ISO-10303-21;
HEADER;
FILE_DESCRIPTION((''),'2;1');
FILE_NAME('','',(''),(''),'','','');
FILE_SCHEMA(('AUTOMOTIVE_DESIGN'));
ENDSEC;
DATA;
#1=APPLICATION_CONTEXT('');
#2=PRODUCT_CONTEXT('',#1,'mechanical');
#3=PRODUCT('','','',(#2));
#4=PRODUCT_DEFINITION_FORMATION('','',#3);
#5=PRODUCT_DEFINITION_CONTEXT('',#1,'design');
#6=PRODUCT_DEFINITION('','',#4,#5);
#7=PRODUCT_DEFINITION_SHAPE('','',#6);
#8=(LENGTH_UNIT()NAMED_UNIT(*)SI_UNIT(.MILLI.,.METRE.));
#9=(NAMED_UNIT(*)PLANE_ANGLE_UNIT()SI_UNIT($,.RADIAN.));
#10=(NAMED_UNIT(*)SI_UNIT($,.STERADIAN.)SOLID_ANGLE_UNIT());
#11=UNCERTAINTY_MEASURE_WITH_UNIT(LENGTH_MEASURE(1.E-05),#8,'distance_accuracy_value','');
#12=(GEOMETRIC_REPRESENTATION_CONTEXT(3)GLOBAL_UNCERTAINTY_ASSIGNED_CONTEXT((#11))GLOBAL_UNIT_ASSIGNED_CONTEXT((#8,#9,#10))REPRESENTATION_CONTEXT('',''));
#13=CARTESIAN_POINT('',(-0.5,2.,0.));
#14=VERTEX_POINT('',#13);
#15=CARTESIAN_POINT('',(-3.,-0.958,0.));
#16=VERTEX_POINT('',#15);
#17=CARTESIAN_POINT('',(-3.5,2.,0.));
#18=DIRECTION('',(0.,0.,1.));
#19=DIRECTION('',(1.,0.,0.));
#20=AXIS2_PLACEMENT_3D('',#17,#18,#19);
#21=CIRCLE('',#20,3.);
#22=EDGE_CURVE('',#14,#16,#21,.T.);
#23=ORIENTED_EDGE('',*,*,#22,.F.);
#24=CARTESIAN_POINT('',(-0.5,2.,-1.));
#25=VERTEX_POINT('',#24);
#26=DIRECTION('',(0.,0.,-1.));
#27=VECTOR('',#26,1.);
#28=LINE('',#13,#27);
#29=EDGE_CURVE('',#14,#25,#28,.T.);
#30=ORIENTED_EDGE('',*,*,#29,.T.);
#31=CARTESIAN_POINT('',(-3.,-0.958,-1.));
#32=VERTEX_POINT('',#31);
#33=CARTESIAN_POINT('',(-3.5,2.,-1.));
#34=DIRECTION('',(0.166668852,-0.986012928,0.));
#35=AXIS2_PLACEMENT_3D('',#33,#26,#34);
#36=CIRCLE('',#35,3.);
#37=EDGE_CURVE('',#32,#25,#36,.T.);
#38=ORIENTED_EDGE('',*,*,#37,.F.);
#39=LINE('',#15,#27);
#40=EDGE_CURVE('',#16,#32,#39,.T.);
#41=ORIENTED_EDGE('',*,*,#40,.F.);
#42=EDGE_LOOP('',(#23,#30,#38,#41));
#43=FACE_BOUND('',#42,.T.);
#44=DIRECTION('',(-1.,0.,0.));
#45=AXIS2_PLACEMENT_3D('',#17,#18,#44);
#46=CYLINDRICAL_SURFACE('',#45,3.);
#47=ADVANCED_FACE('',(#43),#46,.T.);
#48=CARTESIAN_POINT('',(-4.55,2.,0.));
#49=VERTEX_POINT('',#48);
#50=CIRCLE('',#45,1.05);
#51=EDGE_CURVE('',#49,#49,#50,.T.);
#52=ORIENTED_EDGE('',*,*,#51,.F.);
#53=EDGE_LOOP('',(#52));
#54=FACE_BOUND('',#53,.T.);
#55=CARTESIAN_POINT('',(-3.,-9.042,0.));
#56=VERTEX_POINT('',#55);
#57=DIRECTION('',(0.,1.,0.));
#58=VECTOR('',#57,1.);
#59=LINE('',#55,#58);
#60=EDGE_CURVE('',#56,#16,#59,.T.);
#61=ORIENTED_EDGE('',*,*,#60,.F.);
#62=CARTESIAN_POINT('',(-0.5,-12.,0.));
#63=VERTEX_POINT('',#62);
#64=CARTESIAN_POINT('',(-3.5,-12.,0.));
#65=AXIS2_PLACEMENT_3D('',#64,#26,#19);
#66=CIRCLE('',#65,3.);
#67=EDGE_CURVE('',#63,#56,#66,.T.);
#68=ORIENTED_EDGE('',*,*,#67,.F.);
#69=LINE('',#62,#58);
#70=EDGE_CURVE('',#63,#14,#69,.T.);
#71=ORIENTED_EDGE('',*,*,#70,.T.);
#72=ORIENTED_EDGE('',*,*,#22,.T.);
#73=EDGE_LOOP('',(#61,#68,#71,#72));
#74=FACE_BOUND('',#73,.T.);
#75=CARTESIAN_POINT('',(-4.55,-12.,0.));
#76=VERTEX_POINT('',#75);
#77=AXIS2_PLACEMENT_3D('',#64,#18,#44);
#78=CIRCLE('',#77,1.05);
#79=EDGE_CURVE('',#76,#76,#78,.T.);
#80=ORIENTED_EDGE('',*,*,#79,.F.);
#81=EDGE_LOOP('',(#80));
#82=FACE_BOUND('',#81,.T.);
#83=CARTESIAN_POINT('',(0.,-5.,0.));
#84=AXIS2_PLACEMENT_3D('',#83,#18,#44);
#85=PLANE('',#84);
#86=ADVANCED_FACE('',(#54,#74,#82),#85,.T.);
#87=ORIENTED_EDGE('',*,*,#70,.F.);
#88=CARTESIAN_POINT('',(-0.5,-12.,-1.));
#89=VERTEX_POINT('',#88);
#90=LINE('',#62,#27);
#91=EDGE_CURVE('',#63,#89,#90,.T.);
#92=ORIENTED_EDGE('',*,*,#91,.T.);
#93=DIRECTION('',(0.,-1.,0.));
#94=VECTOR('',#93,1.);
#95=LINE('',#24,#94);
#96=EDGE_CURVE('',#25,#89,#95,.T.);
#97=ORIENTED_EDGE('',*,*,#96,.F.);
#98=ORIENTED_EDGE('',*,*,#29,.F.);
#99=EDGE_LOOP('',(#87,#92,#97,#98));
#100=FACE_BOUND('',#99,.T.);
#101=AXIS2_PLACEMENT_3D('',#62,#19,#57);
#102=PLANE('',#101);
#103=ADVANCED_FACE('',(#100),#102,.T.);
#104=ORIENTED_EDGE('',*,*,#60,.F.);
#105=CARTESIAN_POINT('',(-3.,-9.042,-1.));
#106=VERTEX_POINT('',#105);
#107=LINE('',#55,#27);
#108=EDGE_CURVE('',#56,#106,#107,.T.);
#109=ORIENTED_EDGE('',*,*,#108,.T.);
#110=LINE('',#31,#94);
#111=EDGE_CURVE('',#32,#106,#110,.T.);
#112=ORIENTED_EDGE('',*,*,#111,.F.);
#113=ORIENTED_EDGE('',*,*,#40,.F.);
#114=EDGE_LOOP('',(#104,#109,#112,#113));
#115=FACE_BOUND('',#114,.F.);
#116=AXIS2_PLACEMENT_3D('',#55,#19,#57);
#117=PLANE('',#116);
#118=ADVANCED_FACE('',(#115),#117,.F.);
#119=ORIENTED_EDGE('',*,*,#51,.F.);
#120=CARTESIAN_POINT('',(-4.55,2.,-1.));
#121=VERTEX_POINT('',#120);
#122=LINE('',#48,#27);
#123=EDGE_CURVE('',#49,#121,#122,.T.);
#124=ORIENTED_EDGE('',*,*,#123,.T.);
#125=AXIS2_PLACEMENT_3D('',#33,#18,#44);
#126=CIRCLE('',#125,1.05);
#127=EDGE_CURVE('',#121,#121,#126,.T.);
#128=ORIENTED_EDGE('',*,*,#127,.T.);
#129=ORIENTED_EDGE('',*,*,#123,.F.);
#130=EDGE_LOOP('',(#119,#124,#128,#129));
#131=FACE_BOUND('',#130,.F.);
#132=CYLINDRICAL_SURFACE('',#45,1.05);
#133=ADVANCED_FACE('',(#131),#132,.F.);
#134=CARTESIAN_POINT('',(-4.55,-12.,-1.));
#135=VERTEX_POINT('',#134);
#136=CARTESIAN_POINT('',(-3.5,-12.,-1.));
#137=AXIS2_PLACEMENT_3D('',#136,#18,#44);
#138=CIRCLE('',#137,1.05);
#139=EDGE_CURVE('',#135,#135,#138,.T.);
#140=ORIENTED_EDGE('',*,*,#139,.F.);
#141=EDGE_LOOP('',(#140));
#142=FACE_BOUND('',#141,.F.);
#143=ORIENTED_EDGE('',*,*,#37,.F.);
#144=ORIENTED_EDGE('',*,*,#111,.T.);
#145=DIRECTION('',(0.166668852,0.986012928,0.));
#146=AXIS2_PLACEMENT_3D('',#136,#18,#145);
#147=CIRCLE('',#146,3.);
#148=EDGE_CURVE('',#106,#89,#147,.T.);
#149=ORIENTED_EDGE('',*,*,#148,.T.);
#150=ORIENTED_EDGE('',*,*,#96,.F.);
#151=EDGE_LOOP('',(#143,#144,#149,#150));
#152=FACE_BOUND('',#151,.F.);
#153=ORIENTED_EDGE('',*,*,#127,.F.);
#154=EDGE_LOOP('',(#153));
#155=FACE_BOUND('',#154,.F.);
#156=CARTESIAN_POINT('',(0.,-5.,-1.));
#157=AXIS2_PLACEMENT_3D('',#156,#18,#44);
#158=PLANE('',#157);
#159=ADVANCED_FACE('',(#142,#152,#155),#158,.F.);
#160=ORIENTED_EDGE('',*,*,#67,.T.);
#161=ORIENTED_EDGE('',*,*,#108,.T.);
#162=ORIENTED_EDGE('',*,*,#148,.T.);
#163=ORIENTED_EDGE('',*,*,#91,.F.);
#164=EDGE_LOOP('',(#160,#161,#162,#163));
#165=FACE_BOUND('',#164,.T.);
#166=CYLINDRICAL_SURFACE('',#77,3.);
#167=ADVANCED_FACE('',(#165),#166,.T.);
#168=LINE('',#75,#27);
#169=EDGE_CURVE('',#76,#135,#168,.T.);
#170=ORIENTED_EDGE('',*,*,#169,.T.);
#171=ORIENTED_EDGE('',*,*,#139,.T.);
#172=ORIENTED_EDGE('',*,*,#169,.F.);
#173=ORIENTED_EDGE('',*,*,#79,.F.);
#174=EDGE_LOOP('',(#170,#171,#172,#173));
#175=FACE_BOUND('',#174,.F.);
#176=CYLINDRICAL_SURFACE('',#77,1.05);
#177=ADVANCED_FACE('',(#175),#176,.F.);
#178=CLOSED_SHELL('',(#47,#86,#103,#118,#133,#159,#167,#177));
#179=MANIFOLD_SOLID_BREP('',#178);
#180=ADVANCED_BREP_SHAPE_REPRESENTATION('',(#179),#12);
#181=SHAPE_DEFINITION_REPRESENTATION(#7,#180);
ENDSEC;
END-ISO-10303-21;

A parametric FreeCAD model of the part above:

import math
import FreeCAD as App
import Part
import Sketcher

V = App.Vector
Q = App.Units.Quantity

doc = App.newDocument("Part")
body = doc.addObject("PartDesign::Body", "Body")

# Sketch on XY plane
sketch1 = doc.addObject("Sketcher::SketchObject", "Sketch")
body.addObject(sketch1)
sketch1.AttachmentSupport = (doc.XY_Plane, [""])
sketch1.MapMode = "FlatFace"
sketch1.addGeometry(Part.ArcOfCircle(Part.Circle(V(-3.5, -12, 0), V(0, 0, 1), 3), math.radians(80.405805), math.radians(360)), False)
sketch1.addGeometry(Part.LineSegment(V(-0.5, -12, 0), V(-0.5, 2, 0)), False)
sketch1.addGeometry(Part.ArcOfCircle(Part.Circle(V(-3.5, 2, 0), V(0, 0, 1), 3), math.radians(0), math.radians(279.594195)), False)
sketch1.addGeometry(Part.LineSegment(V(-3, -0.958, 0), V(-3, -9.042, 0)), False)
sketch1.addGeometry(Part.Circle(V(-3.5, -12, 0), V(0, 0, 1), 1.05), False)
sketch1.addGeometry(Part.Circle(V(-3.5, 2, 0), V(0, 0, 1), 1.05), False)
sketch1.addConstraint(Sketcher.Constraint("Tangent", 0, 2, 1, 1))
sketch1.addConstraint(Sketcher.Constraint("Tangent", 1, 2, 2, 1))
sketch1.addConstraint(Sketcher.Constraint("Coincident", 2, 2, 3, 1))
sketch1.addConstraint(Sketcher.Constraint("Coincident", 3, 2, 0, 1))
sketch1.addConstraint(Sketcher.Constraint("Vertical", 1))
sketch1.addConstraint(Sketcher.Constraint("Vertical", 3))
sketch1.addConstraint(Sketcher.Constraint("Coincident", 4, 3, 0, 3))
sketch1.addConstraint(Sketcher.Constraint("Coincident", 5, 3, 2, 3))
sketch1.addConstraint(Sketcher.Constraint("Equal", 0, 2))
sketch1.addConstraint(Sketcher.Constraint("Equal", 4, 5))
sketch1.addConstraint(Sketcher.Constraint("Radius", 0, Q("3 mm")))
sketch1.addConstraint(Sketcher.Constraint("Diameter", 4, Q("2.1 mm")))
sketch1.addConstraint(Sketcher.Constraint("DistanceX", 2, 2, 1, 2, Q("2.5 mm")))
sketch1.addConstraint(Sketcher.Constraint("DistanceY", 1, 1, 1, 2, Q("14 mm")))
sketch1.addConstraint(Sketcher.Constraint("DistanceY", 0, 3, -1, 1, Q("12 mm")))
sketch1.addConstraint(Sketcher.Constraint("DistanceX", 2, 2, -1, 1, Q("3 mm")))
pad1 = doc.addObject("PartDesign::Pad", "Pad")
body.addObject(pad1)
pad1.Profile = sketch1
pad1.Length = 1
pad1.Reversed = True

doc.recompute()
